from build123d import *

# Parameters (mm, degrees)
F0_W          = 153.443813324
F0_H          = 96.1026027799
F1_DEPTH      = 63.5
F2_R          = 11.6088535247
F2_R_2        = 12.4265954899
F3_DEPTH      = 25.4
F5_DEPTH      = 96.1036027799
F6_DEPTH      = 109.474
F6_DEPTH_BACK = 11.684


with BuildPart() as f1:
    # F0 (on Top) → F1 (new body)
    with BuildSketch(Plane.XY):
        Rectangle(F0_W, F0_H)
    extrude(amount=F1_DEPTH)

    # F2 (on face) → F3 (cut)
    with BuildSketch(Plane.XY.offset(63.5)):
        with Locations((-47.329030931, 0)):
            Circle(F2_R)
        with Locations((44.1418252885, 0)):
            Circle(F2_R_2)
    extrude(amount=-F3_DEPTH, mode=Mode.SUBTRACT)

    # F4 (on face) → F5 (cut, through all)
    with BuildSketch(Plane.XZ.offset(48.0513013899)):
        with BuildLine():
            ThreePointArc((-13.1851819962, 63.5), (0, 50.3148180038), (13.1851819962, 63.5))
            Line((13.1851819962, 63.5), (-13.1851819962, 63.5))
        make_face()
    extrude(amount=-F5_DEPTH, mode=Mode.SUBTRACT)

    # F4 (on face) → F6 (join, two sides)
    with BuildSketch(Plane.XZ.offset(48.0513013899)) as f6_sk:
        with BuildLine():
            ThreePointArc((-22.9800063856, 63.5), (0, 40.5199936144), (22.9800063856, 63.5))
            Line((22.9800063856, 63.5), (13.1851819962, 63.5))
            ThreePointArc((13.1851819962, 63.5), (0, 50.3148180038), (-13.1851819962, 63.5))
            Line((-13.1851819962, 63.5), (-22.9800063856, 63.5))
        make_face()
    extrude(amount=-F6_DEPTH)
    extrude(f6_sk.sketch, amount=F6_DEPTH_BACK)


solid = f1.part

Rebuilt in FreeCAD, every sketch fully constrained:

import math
import FreeCAD as App
import Part
import Sketcher
from FreeCAD import Vector
Q = App.Units.Quantity

doc = App.newDocument("Part")
body = doc.addObject("PartDesign::Body", "Body")

sketch1 = body.newObject("Sketcher::SketchObject", "Sketch")
sketch1.AttachmentSupport = (doc.getObject("XY_Plane"), [""])
sketch1.MapMode = "FlatFace"
sketch1.addGeometry([
    Part.LineSegment(Vector(-77, 48, 0), Vector(-77, -48, 0)),
    Part.LineSegment(Vector(-77, -48, 0), Vector(77, -48, 0)),
    Part.LineSegment(Vector(77, -48, 0), Vector(77, 48, 0)),
    Part.LineSegment(Vector(77, 48, 0), Vector(-77, 48, 0)),
], False)
sketch1.addConstraint([
    Sketcher.Constraint("Coincident", 0, 2, 1, 1),
    Sketcher.Constraint("Coincident", 1, 2, 2, 1),
    Sketcher.Constraint("Coincident", 2, 2, 3, 1),
    Sketcher.Constraint("Coincident", 3, 2, 0, 1),
    Sketcher.Constraint("Vertical", 0),
    Sketcher.Constraint("Horizontal", 1),
    Sketcher.Constraint("Vertical", 2),
    Sketcher.Constraint("Horizontal", 3),
    Sketcher.Constraint("Symmetric", 0, 2, 2, 2, -1, 1),
    Sketcher.Constraint("DistanceY", 0, 2, -1, 1, 48.051301),
    Sketcher.Constraint("DistanceX", 1, 1, 1, 2, 153.443813),
])
pad1 = body.newObject("PartDesign::Pad", "Pad")
pad1.Profile = sketch1
pad1.Length = Q("2.5 in")

sketch2 = body.newObject("Sketcher::SketchObject", "Sketch001")
sketch2.AttachmentSupport = (doc.getObject("XY_Plane"), [""])
sketch2.MapMode = "FlatFace"
sketch2.AttachmentOffset = App.Placement(Vector(0, 0, 2.5 * 25.4), App.Rotation())
sketch2.addGeometry([
    Part.Circle(Vector(-47, 0, 0), Vector(0, 0, 1), 12),
    Part.Circle(Vector(44, 0, 0), Vector(0, 0, 1), 12),
], False)
sketch2.addConstraint([
    Sketcher.Constraint("PointOnObject", 0, 3, -1),
    Sketcher.Constraint("PointOnObject", 1, 3, -1),
    Sketcher.Constraint("Diameter", 1, 24.853191),
    Sketcher.Constraint("Diameter", 0, 23.217707),
    Sketcher.Constraint("DistanceX", 0, 3, -1, 1, 47.329031),
    Sketcher.Constraint("DistanceX", -1, 1, 1, 3, 44.141825),
])
pocket1 = body.newObject("PartDesign::Pocket", "Pocket")
pocket1.Profile = sketch2
pocket1.Length = Q("1 in")

sketch3 = body.newObject("Sketcher::SketchObject", "Sketch002")
sketch3.AttachmentSupport = (doc.getObject("XZ_Plane"), [""])
sketch3.MapMode = "FlatFace"
sketch3.AttachmentOffset = App.Placement(Vector(0, 0, 48.051301), App.Rotation())
sketch3.addGeometry([
    Part.ArcOfCircle(Part.Circle(Vector(0, 64, 0), Vector(0, 0, 1), 13), math.radians(180), math.radians(360)),
    Part.LineSegment(Vector(13, 64, 0), Vector(-13, 64, 0)),
], False)
sketch3.addConstraint([
    Sketcher.Constraint("Coincident", 0, 1, 1, 2),
    Sketcher.Constraint("Coincident", 1, 1, 0, 2),
    Sketcher.Constraint("Horizontal", 1),
    Sketcher.Constraint("PointOnObject", 0, 3, -2),
    Sketcher.Constraint("DistanceY", -1, 1, 0, 3, Q("2.5 in")),
    Sketcher.Constraint("DistanceY", -1, 1, 0, 1, Q("2.5 in")),
    Sketcher.Constraint("Radius", 0, 13.185182),
])
pocket2 = body.newObject("PartDesign::Pocket", "Pocket001")
pocket2.Profile = sketch3
pocket2.Type = "ThroughAll"

sketch4 = body.newObject("Sketcher::SketchObject", "Sketch003")
sketch4.AttachmentSupport = (doc.getObject("XZ_Plane"), [""])
sketch4.MapMode = "FlatFace"
sketch4.AttachmentOffset = App.Placement(Vector(0, 0, 48.051301), App.Rotation())
sketch4.addGeometry([
    Part.ArcOfCircle(Part.Circle(Vector(0, 64, 0), Vector(0, 0, 1), 23), math.radians(180), math.radians(360)),
    Part.LineSegment(Vector(23, 64, 0), Vector(13, 64, 0)),
    Part.ArcOfCircle(Part.Circle(Vector(0, 64, 0), Vector(0, 0, 1), 13), math.radians(180), math.radians(360)),
    Part.LineSegment(Vector(-13, 64, 0), Vector(-23, 64, 0)),
], False)
sketch4.addConstraint([
    Sketcher.Constraint("Coincident", 0, 2, 1, 1),
    Sketcher.Constraint("Coincident", 1, 2, 2, 2),
    Sketcher.Constraint("Coincident", 2, 1, 3, 1),
    Sketcher.Constraint("Coincident", 3, 2, 0, 1),
    Sketcher.Constraint("Horizontal", 1),
    Sketcher.Constraint("Horizontal", 3),
    Sketcher.Constraint("Coincident", 2, 3, 0, 3),
    Sketcher.Constraint("Symmetric", 1, 2, 2, 1, -2),
    Sketcher.Constraint("Horizontal", 2, 3, 0, 2),
    Sketcher.Constraint("DistanceY", -1, 1, 0, 3, Q("2.5 in")),
    Sketcher.Constraint("Radius", 2, 13.185182),
    Sketcher.Constraint("Radius", 0, 22.980006),
])
pad2 = body.newObject("PartDesign::Pad", "Pad001")
pad2.Profile = sketch4
pad2.Type = "TwoLengths"
pad2.Length = Q("4.31 in")
pad2.Length2 = Q("0.46 in")
pad2.Reversed = True

doc.recompute()
